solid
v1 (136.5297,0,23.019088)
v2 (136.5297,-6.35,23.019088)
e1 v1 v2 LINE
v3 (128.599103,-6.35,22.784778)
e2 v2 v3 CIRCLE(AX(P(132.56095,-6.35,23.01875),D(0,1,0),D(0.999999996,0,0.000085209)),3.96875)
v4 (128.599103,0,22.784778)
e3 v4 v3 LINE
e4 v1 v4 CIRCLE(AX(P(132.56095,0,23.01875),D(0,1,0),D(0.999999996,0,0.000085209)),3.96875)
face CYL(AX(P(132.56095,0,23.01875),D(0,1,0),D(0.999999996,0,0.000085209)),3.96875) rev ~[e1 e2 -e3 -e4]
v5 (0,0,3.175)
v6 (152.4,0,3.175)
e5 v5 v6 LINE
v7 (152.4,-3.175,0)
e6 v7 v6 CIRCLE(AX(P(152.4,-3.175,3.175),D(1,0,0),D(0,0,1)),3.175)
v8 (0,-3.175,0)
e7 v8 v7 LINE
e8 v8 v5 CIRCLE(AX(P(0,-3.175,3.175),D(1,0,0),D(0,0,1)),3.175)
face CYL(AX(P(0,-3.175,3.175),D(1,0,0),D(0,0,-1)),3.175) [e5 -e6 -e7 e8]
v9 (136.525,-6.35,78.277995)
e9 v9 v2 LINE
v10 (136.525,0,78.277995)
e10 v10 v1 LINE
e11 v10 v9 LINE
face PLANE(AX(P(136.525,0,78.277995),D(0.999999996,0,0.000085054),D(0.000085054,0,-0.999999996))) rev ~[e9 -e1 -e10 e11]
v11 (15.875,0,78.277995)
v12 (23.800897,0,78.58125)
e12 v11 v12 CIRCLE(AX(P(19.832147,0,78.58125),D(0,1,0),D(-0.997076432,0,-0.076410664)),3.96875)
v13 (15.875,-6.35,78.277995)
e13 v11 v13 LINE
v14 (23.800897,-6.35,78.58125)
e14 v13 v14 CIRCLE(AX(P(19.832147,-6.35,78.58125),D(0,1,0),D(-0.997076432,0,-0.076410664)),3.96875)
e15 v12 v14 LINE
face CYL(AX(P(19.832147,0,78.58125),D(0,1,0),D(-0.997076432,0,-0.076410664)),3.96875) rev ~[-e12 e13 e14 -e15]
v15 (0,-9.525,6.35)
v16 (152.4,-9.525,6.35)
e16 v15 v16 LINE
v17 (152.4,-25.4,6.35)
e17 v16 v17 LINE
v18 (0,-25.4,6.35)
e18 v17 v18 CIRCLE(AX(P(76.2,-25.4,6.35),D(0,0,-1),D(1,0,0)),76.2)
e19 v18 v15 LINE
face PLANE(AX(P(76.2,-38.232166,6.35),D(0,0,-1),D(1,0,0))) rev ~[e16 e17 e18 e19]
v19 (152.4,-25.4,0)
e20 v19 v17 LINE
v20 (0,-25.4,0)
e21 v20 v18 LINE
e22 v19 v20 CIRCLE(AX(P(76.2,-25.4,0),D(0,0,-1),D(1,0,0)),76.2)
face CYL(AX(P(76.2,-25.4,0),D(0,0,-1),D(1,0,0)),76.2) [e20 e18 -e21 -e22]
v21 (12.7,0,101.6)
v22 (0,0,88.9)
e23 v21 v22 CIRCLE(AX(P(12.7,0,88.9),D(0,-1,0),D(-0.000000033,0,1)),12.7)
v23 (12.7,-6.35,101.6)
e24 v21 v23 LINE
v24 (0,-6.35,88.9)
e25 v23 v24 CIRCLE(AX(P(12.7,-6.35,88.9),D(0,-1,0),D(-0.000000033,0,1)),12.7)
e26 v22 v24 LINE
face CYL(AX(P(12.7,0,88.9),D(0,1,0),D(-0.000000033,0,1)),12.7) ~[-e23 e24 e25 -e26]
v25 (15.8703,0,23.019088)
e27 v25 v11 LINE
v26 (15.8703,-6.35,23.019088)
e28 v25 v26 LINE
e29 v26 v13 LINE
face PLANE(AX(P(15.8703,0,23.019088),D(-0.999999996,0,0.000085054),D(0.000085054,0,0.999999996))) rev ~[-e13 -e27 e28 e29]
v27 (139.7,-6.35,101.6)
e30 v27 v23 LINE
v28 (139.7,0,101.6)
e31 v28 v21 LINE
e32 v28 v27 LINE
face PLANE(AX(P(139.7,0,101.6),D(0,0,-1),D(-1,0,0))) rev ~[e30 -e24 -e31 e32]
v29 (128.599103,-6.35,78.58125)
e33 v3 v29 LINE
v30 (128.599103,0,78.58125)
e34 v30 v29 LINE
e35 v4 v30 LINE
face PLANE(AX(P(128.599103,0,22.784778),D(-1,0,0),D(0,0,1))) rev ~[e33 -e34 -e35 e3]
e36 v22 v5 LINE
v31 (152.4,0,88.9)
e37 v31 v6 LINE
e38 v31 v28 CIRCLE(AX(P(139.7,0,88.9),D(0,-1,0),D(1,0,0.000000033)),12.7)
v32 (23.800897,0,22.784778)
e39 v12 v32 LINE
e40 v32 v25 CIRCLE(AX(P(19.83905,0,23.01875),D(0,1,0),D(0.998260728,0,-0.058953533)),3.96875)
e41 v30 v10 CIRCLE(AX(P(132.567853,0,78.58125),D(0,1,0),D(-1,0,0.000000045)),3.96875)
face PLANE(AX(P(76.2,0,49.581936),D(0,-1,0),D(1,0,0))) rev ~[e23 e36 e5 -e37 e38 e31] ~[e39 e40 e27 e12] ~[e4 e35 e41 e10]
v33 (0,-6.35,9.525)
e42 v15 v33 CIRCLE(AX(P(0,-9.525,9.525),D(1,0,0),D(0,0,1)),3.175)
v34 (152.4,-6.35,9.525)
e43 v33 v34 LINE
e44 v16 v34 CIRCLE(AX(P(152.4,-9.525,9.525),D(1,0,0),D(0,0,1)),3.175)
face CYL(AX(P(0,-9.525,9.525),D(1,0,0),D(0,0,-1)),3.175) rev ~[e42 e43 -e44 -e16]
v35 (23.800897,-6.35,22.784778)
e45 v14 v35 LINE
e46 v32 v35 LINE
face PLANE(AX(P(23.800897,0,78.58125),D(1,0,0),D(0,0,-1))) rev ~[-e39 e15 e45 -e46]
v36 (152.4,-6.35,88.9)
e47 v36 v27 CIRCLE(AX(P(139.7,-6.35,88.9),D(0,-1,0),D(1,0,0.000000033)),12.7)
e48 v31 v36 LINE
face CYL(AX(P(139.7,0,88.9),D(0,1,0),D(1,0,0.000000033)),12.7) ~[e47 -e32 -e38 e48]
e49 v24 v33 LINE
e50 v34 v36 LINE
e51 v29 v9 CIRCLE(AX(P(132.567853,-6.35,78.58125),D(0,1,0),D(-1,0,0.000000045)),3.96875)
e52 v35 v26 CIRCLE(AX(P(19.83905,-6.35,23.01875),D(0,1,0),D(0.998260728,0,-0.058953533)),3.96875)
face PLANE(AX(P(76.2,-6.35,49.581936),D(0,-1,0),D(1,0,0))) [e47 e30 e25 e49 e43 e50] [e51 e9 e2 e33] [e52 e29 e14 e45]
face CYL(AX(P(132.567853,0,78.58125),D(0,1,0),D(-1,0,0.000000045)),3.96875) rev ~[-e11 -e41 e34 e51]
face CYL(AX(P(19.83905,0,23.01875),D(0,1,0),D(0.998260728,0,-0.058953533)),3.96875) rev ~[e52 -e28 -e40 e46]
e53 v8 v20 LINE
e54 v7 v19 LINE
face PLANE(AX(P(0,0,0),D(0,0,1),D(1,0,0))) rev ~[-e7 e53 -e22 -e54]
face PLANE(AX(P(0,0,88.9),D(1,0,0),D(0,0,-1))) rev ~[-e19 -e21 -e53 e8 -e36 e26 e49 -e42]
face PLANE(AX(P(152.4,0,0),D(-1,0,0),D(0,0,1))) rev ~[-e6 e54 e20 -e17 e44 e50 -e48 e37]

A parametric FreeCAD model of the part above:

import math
import FreeCAD as App
import Part
import Sketcher
Q = App.Units.Quantity


def edges_at(feature, points):
    """Names of the edges that pass closest to the given points."""
    edges = feature.Shape.Edges
    near = lambda p: min(range(len(edges)), key=lambda i: edges[i].distToShape(Part.Vertex(*p))[0])
    return sorted({f"Edge{near(p) + 1}" for p in points})

doc = App.newDocument("Part")
params = doc.addObject("Spreadsheet::Sheet", "Params")
for row, (alias, value) in enumerate([
    ("sketch1_radius", "0.5 in"),
    ("sketch1_width", "6 in"),
    ("sketch1_height", "3.5 in"),
    ("sketch1_radius2", "0.15625 in"),
    ("pad1_length", "0.25 in"),
    ("sketch2_radius", "3 in"),
    ("sketch2_height", "1 in"),
    ("pad2_length", "0.25 in"),
    ("fillet_radius", "0.125 in"),
], start=1):
    params.set(f"A{row}", alias)
    params.set(f"B{row}", "=" + value)
    params.setAlias(f"B{row}", alias)

body = doc.addObject("PartDesign::Body", "Body")

sketch1 = body.newObject("Sketcher::SketchObject", "Sketch")
sketch1.AttachmentSupport = (doc.getObject("XZ_Plane"), [""])
sketch1.MapMode = "FlatFace"
sketch1.addGeometry(Part.LineSegment(App.Vector(0, 88.9, 0), App.Vector(0, 0, 0)), False)
sketch1.addGeometry(Part.LineSegment(App.Vector(0, 0, 0), App.Vector(152.4, 0, 0)), False)
sketch1.addGeometry(Part.LineSegment(App.Vector(152.4, 0, 0), App.Vector(152.4, 88.9, 0)), False)
sketch1.addGeometry(Part.ArcOfCircle(Part.Circle(App.Vector(139.7, 88.9, 0), App.Vector(0, 0, 1), 12.7), math.radians(0), math.radians(90)), False)
sketch1.addGeometry(Part.LineSegment(App.Vector(139.7, 101.6, 0), App.Vector(12.7, 101.6, 0)), False)
sketch1.addGeometry(Part.ArcOfCircle(Part.Circle(App.Vector(12.7, 88.9, 0), App.Vector(0, 0, 1), 12.7), math.radians(90), math.radians(180)), False)
sketch1.addGeometry(Part.LineSegment(App.Vector(15.9, 23, 0), App.Vector(15.9, 78.3, 0)), False)
sketch1.addGeometry(Part.ArcOfCircle(Part.Circle(App.Vector(19.8, 78.6, 0), App.Vector(0, 0, 1), 4), math.radians(0), math.radians(184)), False)
sketch1.addGeometry(Part.LineSegment(App.Vector(23.8, 78.6, 0), App.Vector(23.8, 22.8, 0)), False)
sketch1.addGeometry(Part.ArcOfCircle(Part.Circle(App.Vector(19.8, 23, 0), App.Vector(0, 0, 1), 4), math.radians(180), math.radians(357)), False)
sketch1.addGeometry(Part.ArcOfCircle(Part.Circle(App.Vector(132.6, 23, 0), App.Vector(0, 0, 1), 4), math.radians(-177), math.radians(0)), False)
sketch1.addGeometry(Part.LineSegment(App.Vector(128.6, 22.8, 0), App.Vector(128.6, 78.6, 0)), False)
sketch1.addGeometry(Part.ArcOfCircle(Part.Circle(App.Vector(132.6, 78.6, 0), App.Vector(0, 0, 1), 4), math.radians(-4), math.radians(180)), False)
sketch1.addGeometry(Part.LineSegment(App.Vector(136.5, 78.3, 0), App.Vector(136.5, 23, 0)), False)
sketch1.addConstraint(Sketcher.Constraint("Coincident", 0, 2, 1, 1))
sketch1.addConstraint(Sketcher.Constraint("Coincident", 1, 2, 2, 1))
sketch1.addConstraint(Sketcher.Constraint("Tangent", 2, 2, 3, 1))
sketch1.addConstraint(Sketcher.Constraint("Tangent", 3, 2, 4, 1))
sketch1.addConstraint(Sketcher.Constraint("Tangent", 4, 2, 5, 1))
sketch1.addConstraint(Sketcher.Constraint("Tangent", 5, 2, 0, 1))
sketch1.addConstraint(Sketcher.Constraint("Coincident", 6, 2, 7, 2))
sketch1.addConstraint(Sketcher.Constraint("Tangent", 7, 1, 8, 1))
sketch1.addConstraint(Sketcher.Constraint("Coincident", 8, 2, 9, 2))
sketch1.addConstraint(Sketcher.Constraint("Tangent", 9, 1, 6, 1))
sketch1.addConstraint(Sketcher.Constraint("Coincident", 10, 1, 11, 1))
sketch1.addConstraint(Sketcher.Constraint("Tangent", 11, 2, 12, 2))
sketch1.addConstraint(Sketcher.Constraint("Coincident", 12, 1, 13, 1))
sketch1.addConstraint(Sketcher.Constraint("Tangent", 13, 2, 10, 2))
sketch1.addConstraint(Sketcher.Constraint("Vertical", 0))
sketch1.addConstraint(Sketcher.Constraint("Horizontal", 1))
sketch1.addConstraint(Sketcher.Constraint("Vertical", 2))
sketch1.addConstraint(Sketcher.Constraint("Horizontal", 4))
sketch1.addConstraint(Sketcher.Constraint("Vertical", 8))
sketch1.addConstraint(Sketcher.Constraint("Vertical", 11))
sketch1.addConstraint(Sketcher.Constraint("Coincident", 0, 2, -1, 1))
sketch1.addConstraint(Sketcher.Constraint("Equal", 3, 5))
sketch1.addConstraint(Sketcher.Constraint("Equal", 7, 9))
sketch1.addConstraint(Sketcher.Constraint("Equal", 9, 10))
sketch1.addConstraint(Sketcher.Constraint("Equal", 10, 12))
sketch1.addConstraint(Sketcher.Constraint("Horizontal", 9, 3, 10, 3))
sketch1.addConstraint(Sketcher.Constraint("Horizontal", 7, 3, 12, 3))
sketch1.addConstraint(Sketcher.Constraint("Horizontal", 8, 2, 10, 1))
sketch1.addConstraint(Sketcher.Constraint("Horizontal", 6, 2, 12, 1))
sketch1.addConstraint(Sketcher.Constraint("Radius", 3, Q("0.5 in")))
sketch1.addConstraint(Sketcher.Constraint("DistanceX", 1, 1, 1, 2, Q("6 in")))
sketch1.addConstraint(Sketcher.Constraint("DistanceY", 0, 2, 0, 1, Q("3.5 in")))
sketch1.addConstraint(Sketcher.Constraint("Radius", 7, Q("0.15625 in")))
sketch1.addConstraint(Sketcher.Constraint("DistanceY", -1, 1, 7, 3, Q("3.09375 in")))
sketch1.addConstraint(Sketcher.Constraint("DistanceY", -1, 1, 9, 3, Q("0.90625 in")))
sketch1.addConstraint(Sketcher.Constraint("DistanceX", -1, 1, 6, 2, Q("0.625 in")))
sketch1.addConstraint(Sketcher.Constraint("DistanceX", -1, 1, 12, 1, Q("5.375 in")))
sketch1.addConstraint(Sketcher.Constraint("DistanceY", 8, 2, 8, 1, Q("55.796472 mm")))
sketch1.addConstraint(Sketcher.Constraint("DistanceX", -1, 1, 9, 1, Q("15.8703 mm")))
sketch1.setExpression("Constraints[29]", "Params.sketch1_radius")
sketch1.setExpression("Constraints[30]", "Params.sketch1_width")
sketch1.setExpression("Constraints[31]", "Params.sketch1_height")
sketch1.setExpression("Constraints[32]", "Params.sketch1_radius2")
pad1 = body.newObject("PartDesign::Pad", "Pad")
pad1.Profile = sketch1
pad1.setExpression("Length", "Params.pad1_length")

sketch2 = body.newObject("Sketcher::SketchObject", "Sketch001")
sketch2.AttachmentSupport = (doc.getObject("XY_Plane"), [""])
sketch2.MapMode = "FlatFace"
sketch2.addGeometry(Part.LineSegment(App.Vector(0, 0, 0), App.Vector(152, 0, 0)), False)
sketch2.addGeometry(Part.LineSegment(App.Vector(152, 0, 0), App.Vector(152, -25, 0)), False)
sketch2.addGeometry(Part.ArcOfCircle(Part.Circle(App.Vector(76, -25, 0), App.Vector(0, 0, 1), 76), math.radians(180), math.radians(360)), False)
sketch2.addGeometry(Part.LineSegment(App.Vector(0, -25, 0), App.Vector(0, 0, 0)), False)
sketch2.addConstraint(Sketcher.Constraint("Coincident", 0, 2, 1, 1))
sketch2.addConstraint(Sketcher.Constraint("Tangent", 1, 2, 2, 2))
sketch2.addConstraint(Sketcher.Constraint("Tangent", 2, 1, 3, 1))
sketch2.addConstraint(Sketcher.Constraint("Coincident", 3, 2, 0, 1))
sketch2.addConstraint(Sketcher.Constraint("Horizontal", 0))
sketch2.addConstraint(Sketcher.Constraint("Vertical", 1))
sketch2.addConstraint(Sketcher.Constraint("Vertical", 3))
sketch2.addConstraint(Sketcher.Constraint("Coincident", 3, 2, -1, 1))
sketch2.addConstraint(Sketcher.Constraint("Radius", 2, Q("3 in")))
sketch2.addConstraint(Sketcher.Constraint("DistanceY", 1, 2, 1, 1, Q("1 in")))
sketch2.setExpression("Constraints[8]", "Params.sketch2_radius")
sketch2.setExpression("Constraints[9]", "Params.sketch2_height")
pad2 = body.newObject("PartDesign::Pad", "Pad001")
pad2.Profile = sketch2
pad2.setExpression("Length", "Params.pad2_length")
doc.recompute()

fillet = body.newObject("PartDesign::Fillet", "Fillet")
fillet.Base = (pad2, edges_at(pad2, [(76.2, 0, 0), (76.2, -6.35, 6.35)]))
fillet.setExpression("Radius", "Params.fillet_radius")

doc.recompute()
